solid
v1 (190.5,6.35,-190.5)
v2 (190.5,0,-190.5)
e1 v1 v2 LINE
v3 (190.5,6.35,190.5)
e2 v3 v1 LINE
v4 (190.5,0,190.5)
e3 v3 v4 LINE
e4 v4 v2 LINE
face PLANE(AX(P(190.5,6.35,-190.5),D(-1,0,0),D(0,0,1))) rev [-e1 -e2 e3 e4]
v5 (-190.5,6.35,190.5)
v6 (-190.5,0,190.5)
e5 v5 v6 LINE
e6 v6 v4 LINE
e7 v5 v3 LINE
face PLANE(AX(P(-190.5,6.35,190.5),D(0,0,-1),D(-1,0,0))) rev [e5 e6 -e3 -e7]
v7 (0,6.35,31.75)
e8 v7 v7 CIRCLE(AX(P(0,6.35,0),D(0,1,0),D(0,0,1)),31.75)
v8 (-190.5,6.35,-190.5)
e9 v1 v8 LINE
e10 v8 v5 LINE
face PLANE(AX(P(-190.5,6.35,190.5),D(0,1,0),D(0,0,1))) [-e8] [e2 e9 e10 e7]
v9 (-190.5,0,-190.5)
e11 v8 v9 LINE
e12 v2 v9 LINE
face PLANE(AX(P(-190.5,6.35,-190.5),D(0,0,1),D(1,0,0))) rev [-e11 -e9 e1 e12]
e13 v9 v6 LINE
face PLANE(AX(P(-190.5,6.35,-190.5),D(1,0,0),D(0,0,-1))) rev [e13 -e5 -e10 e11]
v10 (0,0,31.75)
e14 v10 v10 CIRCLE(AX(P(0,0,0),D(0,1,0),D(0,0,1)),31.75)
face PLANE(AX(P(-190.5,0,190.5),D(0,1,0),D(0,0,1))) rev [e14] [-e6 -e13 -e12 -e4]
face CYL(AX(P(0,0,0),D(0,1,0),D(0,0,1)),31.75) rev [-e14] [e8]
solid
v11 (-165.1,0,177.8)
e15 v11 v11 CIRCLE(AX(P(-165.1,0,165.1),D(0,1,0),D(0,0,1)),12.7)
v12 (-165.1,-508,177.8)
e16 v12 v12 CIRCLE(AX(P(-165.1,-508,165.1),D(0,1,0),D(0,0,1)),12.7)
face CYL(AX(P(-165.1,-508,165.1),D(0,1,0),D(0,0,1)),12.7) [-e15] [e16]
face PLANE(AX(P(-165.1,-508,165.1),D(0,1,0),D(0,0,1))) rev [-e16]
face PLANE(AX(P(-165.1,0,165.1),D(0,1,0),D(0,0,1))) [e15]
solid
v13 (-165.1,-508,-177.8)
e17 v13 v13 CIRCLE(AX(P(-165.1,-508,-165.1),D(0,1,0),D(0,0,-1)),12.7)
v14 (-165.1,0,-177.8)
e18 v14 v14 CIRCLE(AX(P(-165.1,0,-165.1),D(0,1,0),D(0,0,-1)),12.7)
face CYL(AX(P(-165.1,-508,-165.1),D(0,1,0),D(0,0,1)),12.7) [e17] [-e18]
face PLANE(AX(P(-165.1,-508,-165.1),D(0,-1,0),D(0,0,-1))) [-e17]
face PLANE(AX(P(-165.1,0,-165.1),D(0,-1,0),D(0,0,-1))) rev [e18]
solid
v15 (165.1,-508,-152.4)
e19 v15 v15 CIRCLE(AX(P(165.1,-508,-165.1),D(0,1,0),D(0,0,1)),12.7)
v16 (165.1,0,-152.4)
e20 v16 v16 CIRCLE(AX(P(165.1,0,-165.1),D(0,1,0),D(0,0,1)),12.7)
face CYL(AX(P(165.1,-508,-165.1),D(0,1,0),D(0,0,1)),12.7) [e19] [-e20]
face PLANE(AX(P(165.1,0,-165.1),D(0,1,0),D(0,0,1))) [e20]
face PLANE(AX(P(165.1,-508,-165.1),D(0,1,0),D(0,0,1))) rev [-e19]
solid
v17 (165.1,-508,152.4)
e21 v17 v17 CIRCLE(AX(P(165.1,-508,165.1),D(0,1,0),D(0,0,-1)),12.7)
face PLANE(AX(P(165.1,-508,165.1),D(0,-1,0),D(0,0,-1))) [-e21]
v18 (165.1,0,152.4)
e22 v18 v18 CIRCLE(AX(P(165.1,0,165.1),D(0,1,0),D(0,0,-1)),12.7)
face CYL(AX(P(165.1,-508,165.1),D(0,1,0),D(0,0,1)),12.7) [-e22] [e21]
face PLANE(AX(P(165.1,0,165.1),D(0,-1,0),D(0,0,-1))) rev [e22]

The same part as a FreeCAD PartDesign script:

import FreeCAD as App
import Part
import Sketcher
from FreeCAD import Vector
Q = App.Units.Quantity

doc = App.newDocument("Part")
body = doc.addObject("PartDesign::Body", "Body")

sketch1 = body.newObject("Sketcher::SketchObject", "Sketch")
sketch1.AttachmentSupport = (doc.getObject("XZ_Plane"), [""])
sketch1.MapMode = "FlatFace"
sketch1.addGeometry([
    Part.LineSegment(Vector(-190, -190, 0), Vector(-190, 190, 0)),
    Part.LineSegment(Vector(-190, 190, 0), Vector(190, 190, 0)),
    Part.LineSegment(Vector(190, 190, 0), Vector(190, -190, 0)),
    Part.LineSegment(Vector(190, -190, 0), Vector(-190, -190, 0)),
], False)
sketch1.addConstraint([
    Sketcher.Constraint("Coincident", 0, 2, 1, 1),
    Sketcher.Constraint("Coincident", 1, 2, 2, 1),
    Sketcher.Constraint("Coincident", 2, 2, 3, 1),
    Sketcher.Constraint("Coincident", 3, 2, 0, 1),
    Sketcher.Constraint("Vertical", 0),
    Sketcher.Constraint("Horizontal", 1),
    Sketcher.Constraint("Vertical", 2),
    Sketcher.Constraint("Horizontal", 3),
    Sketcher.Constraint("Symmetric", 0, 2, 2, 2, -1, 1),
    Sketcher.Constraint("Equal", 3, 0),
    Sketcher.Constraint("DistanceX", 1, 1, 1, 2, Q("15 in")),
])
pad1 = body.newObject("PartDesign::Pad", "Pad")
pad1.Profile = sketch1
pad1.Length = Q("0.25 in")
pad1.Reversed = True

sketch2 = body.newObject("Sketcher::SketchObject", "Sketch001")
sketch2.AttachmentSupport = (doc.getObject("XZ_Plane"), [""])
sketch2.MapMode = "FlatFace"
sketch2.AttachmentOffset = App.Placement(Vector(0, 0, -0.25 * 25.4), App.Rotation())
sketch2.addGeometry(Part.Circle(Vector(0, 0, 0), Vector(0, 0, 1), 32), False)
sketch2.addConstraint([
    Sketcher.Constraint("Coincident", 0, 3, -1, 1),
    Sketcher.Constraint("Diameter", 0, Q("2.5 in")),
])
pocket1 = body.newObject("PartDesign::Pocket", "Pocket")
pocket1.Profile = sketch2
pocket1.Type = "ThroughAll"
pocket1.Reversed = True
body2 = doc.addObject("PartDesign::Body", "Body001")

sketch3 = body2.newObject("Sketcher::SketchObject", "Sketch002")
sketch3.AttachmentSupport = (doc.getObject("XZ_Plane001"), [""])
sketch3.MapMode = "FlatFace"
sketch3.addGeometry(Part.Circle(Vector(165, -165, 0), Vector(0, 0, 1), 13), False)
sketch3.addConstraint([
    Sketcher.Constraint("Diameter", 0, Q("1 in")),
    Sketcher.Constraint("DistanceX", -1, 1, 0, 3, Q("6.5 in")),
    Sketcher.Constraint("DistanceY", 0, 3, -1, 1, Q("6.5 in")),
])
pad2 = body2.newObject("PartDesign::Pad", "Pad001")
pad2.Profile = sketch3
pad2.Length = Q("20 in")
body3 = doc.addObject("PartDesign::Body", "Body002")

sketch4 = body3.newObject("Sketcher::SketchObject", "Sketch003")
sketch4.AttachmentSupport = (doc.getObject("XZ_Plane002"), [""])
sketch4.MapMode = "FlatFace"
sketch4.addGeometry(Part.Circle(Vector(-165, -165, 0), Vector(0, 0, 1), 13), False)
sketch4.addConstraint([
    Sketcher.Constraint("Diameter", 0, Q("1 in")),
    Sketcher.Constraint("DistanceX", 0, 3, -1, 1, Q("6.5 in")),
    Sketcher.Constraint("DistanceY", 0, 3, -1, 1, Q("6.5 in")),
])
pad3 = body3.newObject("PartDesign::Pad", "Pad002")
pad3.Profile = sketch4
pad3.Length = Q("20 in")
body4 = doc.addObject("PartDesign::Body", "Body003")

sketch5 = body4.newObject("Sketcher::SketchObject", "Sketch004")
sketch5.AttachmentSupport = (doc.getObject("XZ_Plane003"), [""])
sketch5.MapMode = "FlatFace"
sketch5.addGeometry(Part.Circle(Vector(165, 165, 0), Vector(0, 0, 1), 13), False)
sketch5.addConstraint([
    Sketcher.Constraint("Diameter", 0, Q("1 in")),
    Sketcher.Constraint("DistanceX", -1, 1, 0, 3, Q("6.5 in")),
    Sketcher.Constraint("DistanceY", -1, 1, 0, 3, Q("6.5 in")),
])
pad4 = body4.newObject("PartDesign::Pad", "Pad003")
pad4.Profile = sketch5
pad4.Length = Q("20 in")
body5 = doc.addObject("PartDesign::Body", "Body004")

sketch6 = body5.newObject("Sketcher::SketchObject", "Sketch005")
sketch6.AttachmentSupport = (doc.getObject("XZ_Plane004"), [""])
sketch6.MapMode = "FlatFace"
sketch6.addGeometry(Part.Circle(Vector(-165, 165, 0), Vector(0, 0, 1), 13), False)
sketch6.addConstraint([
    Sketcher.Constraint("Diameter", 0, Q("1 in")),
    Sketcher.Constraint("DistanceX", 0, 3, -1, 1, Q("6.5 in")),
    Sketcher.Constraint("DistanceY", -1, 1, 0, 3, Q("6.5 in")),
])
pad5 = body5.newObject("PartDesign::Pad", "Pad004")
pad5.Profile = sketch6
pad5.Length = Q("20 in")

doc.recompute()
